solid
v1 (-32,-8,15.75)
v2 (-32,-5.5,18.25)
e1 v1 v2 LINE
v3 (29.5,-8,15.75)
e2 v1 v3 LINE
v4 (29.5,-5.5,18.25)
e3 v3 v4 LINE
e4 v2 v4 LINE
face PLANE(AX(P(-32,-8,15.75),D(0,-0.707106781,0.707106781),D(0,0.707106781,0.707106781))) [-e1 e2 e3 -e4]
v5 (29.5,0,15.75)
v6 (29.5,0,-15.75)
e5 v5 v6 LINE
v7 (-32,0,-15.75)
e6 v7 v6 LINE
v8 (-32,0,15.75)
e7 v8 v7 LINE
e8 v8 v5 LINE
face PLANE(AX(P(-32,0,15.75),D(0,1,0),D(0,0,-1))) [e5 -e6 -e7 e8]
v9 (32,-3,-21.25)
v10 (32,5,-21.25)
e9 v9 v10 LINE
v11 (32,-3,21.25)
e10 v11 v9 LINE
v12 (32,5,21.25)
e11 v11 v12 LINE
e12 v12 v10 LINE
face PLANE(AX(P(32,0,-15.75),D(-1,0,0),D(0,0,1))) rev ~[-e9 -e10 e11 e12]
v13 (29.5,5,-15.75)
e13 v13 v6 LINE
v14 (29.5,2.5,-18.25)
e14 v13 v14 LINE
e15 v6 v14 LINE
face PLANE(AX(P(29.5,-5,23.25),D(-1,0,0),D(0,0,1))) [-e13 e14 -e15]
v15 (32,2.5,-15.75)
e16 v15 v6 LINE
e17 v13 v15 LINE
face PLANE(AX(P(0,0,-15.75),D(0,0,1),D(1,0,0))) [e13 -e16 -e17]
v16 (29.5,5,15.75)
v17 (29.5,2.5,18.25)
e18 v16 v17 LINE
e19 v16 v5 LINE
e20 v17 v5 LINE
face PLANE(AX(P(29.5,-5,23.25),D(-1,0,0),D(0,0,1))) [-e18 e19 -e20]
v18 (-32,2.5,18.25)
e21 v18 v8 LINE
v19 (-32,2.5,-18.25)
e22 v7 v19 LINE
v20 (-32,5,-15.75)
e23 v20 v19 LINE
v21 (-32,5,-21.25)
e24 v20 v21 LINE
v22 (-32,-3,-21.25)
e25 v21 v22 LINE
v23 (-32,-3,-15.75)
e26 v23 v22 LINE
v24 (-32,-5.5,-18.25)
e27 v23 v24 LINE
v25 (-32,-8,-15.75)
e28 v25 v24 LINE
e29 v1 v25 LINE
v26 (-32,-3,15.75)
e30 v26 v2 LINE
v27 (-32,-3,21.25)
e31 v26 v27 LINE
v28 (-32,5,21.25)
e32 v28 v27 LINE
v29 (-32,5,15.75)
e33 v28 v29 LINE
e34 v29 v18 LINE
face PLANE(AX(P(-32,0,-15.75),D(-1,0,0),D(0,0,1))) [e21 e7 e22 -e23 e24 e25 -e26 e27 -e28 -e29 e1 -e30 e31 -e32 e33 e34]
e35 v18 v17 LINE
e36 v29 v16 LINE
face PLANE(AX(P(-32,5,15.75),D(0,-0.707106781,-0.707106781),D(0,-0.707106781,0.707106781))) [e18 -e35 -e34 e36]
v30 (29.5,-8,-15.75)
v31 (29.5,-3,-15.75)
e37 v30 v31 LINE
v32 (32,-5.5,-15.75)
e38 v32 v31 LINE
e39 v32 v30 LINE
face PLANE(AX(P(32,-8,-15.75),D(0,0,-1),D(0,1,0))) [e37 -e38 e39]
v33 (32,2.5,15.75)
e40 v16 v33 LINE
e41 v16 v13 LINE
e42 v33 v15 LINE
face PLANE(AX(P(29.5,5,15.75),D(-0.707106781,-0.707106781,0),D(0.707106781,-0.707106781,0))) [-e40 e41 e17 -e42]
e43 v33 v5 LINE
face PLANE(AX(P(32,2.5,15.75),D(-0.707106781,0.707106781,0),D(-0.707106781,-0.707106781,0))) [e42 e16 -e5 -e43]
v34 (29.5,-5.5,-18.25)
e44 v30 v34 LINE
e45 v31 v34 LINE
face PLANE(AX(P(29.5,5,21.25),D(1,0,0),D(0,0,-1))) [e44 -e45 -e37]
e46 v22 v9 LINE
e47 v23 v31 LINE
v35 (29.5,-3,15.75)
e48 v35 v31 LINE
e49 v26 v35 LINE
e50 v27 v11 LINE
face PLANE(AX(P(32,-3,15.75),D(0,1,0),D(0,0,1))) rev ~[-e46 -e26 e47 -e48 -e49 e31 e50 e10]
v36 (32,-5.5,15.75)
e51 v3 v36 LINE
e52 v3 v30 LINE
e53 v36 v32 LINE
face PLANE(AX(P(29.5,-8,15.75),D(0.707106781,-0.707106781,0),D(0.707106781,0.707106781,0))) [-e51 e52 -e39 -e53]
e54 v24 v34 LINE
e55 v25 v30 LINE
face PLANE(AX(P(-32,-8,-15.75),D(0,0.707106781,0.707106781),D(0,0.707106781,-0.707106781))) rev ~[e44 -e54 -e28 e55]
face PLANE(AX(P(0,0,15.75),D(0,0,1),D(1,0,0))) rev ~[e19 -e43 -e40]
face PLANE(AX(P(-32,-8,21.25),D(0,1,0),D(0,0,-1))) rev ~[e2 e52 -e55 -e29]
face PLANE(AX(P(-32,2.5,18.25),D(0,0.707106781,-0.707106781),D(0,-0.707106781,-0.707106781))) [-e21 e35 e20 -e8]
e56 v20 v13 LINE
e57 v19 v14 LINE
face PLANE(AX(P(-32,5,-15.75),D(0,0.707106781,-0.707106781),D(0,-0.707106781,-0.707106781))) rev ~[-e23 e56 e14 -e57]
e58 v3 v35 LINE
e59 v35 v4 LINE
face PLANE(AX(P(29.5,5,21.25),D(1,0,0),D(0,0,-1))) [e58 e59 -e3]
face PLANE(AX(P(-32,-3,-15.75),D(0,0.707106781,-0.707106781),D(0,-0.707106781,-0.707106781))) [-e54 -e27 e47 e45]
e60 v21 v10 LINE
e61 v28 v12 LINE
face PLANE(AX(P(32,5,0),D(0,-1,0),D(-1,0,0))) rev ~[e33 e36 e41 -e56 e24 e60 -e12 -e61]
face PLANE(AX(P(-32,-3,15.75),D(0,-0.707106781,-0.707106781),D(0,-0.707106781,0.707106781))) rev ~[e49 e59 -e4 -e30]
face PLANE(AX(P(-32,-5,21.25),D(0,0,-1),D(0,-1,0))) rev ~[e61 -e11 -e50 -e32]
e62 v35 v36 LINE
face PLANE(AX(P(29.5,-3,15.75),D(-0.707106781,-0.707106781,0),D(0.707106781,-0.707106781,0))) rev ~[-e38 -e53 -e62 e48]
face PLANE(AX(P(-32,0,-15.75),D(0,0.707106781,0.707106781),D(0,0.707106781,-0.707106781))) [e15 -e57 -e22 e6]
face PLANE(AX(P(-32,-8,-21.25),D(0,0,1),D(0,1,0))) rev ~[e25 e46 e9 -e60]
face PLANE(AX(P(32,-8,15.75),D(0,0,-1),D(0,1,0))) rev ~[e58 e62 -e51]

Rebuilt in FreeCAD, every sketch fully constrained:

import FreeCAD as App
import Part
import Sketcher
Q = App.Units.Quantity


def add_polygon(sketch, points):
    """Adds a closed chain of lines whose ends are joined by coincident constraints."""
    first, n = sketch.GeometryCount, len(points)
    for a, b in zip(points, points[1:] + points[:1]):
        sketch.addGeometry(Part.LineSegment(App.Vector(*a, 0), App.Vector(*b, 0)), False)
    for i in range(n):
        sketch.addConstraint(Sketcher.Constraint("Coincident", first + i, 2, first + (i + 1) % n, 1))

doc = App.newDocument("Part")
body = doc.addObject("PartDesign::Body", "Body")

# Sketch on XY plane
sketch1 = body.newObject("Sketcher::SketchObject", "Sketch")
sketch1.AttachmentSupport = (doc.getObject("XY_Plane"), [""])
sketch1.MapMode = "FlatFace"
add_polygon(sketch1, [(-32, 5), (-32, -5), (32, -5), (32, 5)])  # lines 0-3
sketch1.addConstraint([
    Sketcher.Constraint("Vertical", 0),
    Sketcher.Constraint("Horizontal", 1),
    Sketcher.Constraint("Vertical", 2),
    Sketcher.Constraint("Horizontal", 3),
    Sketcher.Constraint("Symmetric", 0, 2, 2, 2, -1, 1),
    Sketcher.Constraint("DistanceX", 1, 1, 1, 2, Q("64 mm")),
    Sketcher.Constraint("DistanceY", 0, 2, 0, 1, Q("10 mm")),
])
pad1 = body.newObject("PartDesign::Pad", "Pad")
pad1.Profile = sketch1
pad1.Length = 46.5
pad1.Midplane = True

# Sketch on XY plane
sketch2 = body.newObject("Sketcher::SketchObject", "Sketch001")
sketch2.AttachmentSupport = (doc.getObject("XY_Plane"), [""])
sketch2.MapMode = "FlatFace"
sketch2.AttachmentOffset = App.Placement(App.Vector(0, 0, 15.75), App.Rotation())
add_polygon(sketch2, [(32, 2.5), (29.5, 5), (29.5, 0)])  # lines 0-2
sketch2.addConstraint([
    Sketcher.Constraint("Vertical", 1),
    Sketcher.Constraint("PointOnObject", 1, 2, -1),
    Sketcher.Constraint("Perpendicular", 0, 2),
    Sketcher.Constraint("Equal", 0, 2),
    Sketcher.Constraint("DistanceY", 1, 2, 1, 1, Q("5 mm")),
    Sketcher.Constraint("DistanceX", -1, 1, 2, 2, Q("32 mm")),
])
pocket1 = body.newObject("PartDesign::Pocket", "Pocket")
pocket1.Profile = sketch2
pocket1.Length = 31.5

# Sketch on YZ plane
sketch3 = body.newObject("Sketcher::SketchObject", "Sketch002")
sketch3.AttachmentSupport = (doc.getObject("YZ_Plane"), [""])
sketch3.MapMode = "FlatFace"
sketch3.AttachmentOffset = App.Placement(App.Vector(0, 0, -32), App.Rotation())
add_polygon(sketch3, [(2.5, -18.25), (0, -15.75), (0, 15.75), (2.5, 18.25), (5, 15.75), (5, -15.75)])  # lines 0-5
sketch3.addConstraint([
    Sketcher.Constraint("Vertical", 1),
    Sketcher.Constraint("Vertical", 4),
    Sketcher.Constraint("Symmetric", 0, 2, 1, 2, -1, 1),
    Sketcher.Constraint("Symmetric", 2, 2, 5, 2, -1),
    Sketcher.Constraint("Perpendicular", 0, 2),
    Sketcher.Constraint("Perpendicular", 2, 3),
    Sketcher.Constraint("Perpendicular", 3, 5),
    Sketcher.Constraint("Horizontal", 1, 2, 3, 2),
    Sketcher.Constraint("DistanceY", 1, 1, 1, 2, Q("31.5 mm")),
    Sketcher.Constraint("DistanceX", -1, 1, 3, 2, Q("5 mm")),
])
pocket2 = body.newObject("PartDesign::Pocket", "Pocket001")
pocket2.Profile = sketch3
pocket2.Length = 61.5
pocket2.Reversed = True

# Sketch on YZ plane
sketch4 = body.newObject("Sketcher::SketchObject", "Sketch003")
sketch4.AttachmentSupport = (doc.getObject("YZ_Plane"), [""])
sketch4.MapMode = "FlatFace"
sketch4.AttachmentOffset = App.Placement(App.Vector(0, 0, -32), App.Rotation())
add_polygon(sketch4, [(5, 23.25), (5, 21.25), (-5, 21.25), (-5, 23.25)])  # lines 0-3
add_polygon(sketch4, [(5, -21.25), (5, -23.25), (-5, -23.25), (-5, -21.25)])  # lines 4-7
sketch4.addConstraint([
    Sketcher.Constraint("Vertical", 0),
    Sketcher.Constraint("Horizontal", 1),
    Sketcher.Constraint("Vertical", 2),
    Sketcher.Constraint("Horizontal", 3),
    Sketcher.Constraint("Vertical", 4),
    Sketcher.Constraint("Horizontal", 5),
    Sketcher.Constraint("Vertical", 6),
    Sketcher.Constraint("Horizontal", 7),
    Sketcher.Constraint("Symmetric", 2, 2, 4, 2, -1, 1),
    Sketcher.Constraint("Symmetric", 0, 2, 6, 2, -1, 1),
    Sketcher.Constraint("Vertical", 3, 2, 4, 2),
    Sketcher.Constraint("DistanceY", 0, 2, 0, 1, Q("2 mm")),
    Sketcher.Constraint("DistanceX", 1, 2, 1, 1, Q("10 mm")),
    Sketcher.Constraint("DistanceY", 4, 2, 0, 2, Q("44.5 mm")),
])
pocket3 = body.newObject("PartDesign::Pocket", "Pocket002")
pocket3.Profile = sketch4
pocket3.Type = "ThroughAll"
pocket3.Reversed = True

# Sketch on YZ plane
sketch5 = body.newObject("Sketcher::SketchObject", "Sketch004")
sketch5.AttachmentSupport = (doc.getObject("YZ_Plane"), [""])
sketch5.MapMode = "FlatFace"
sketch5.AttachmentOffset = App.Placement(App.Vector(0, 0, -32), App.Rotation())
add_polygon(sketch5, [(-5, 21.25), (-5, -21.25), (-8, -21.25), (-8, 21.25)])  # lines 0-3
sketch5.addConstraint([
    Sketcher.Constraint("Vertical", 0),
    Sketcher.Constraint("Horizontal", 1),
    Sketcher.Constraint("Vertical", 2),
    Sketcher.Constraint("Horizontal", 3),
    Sketcher.Constraint("DistanceX", 1, 2, 1, 1, Q("3 mm")),
    Sketcher.Constraint("DistanceY", 0, 2, 0, 1, Q("42.5 mm")),
    Sketcher.Constraint("DistanceX", 0, 2, -1, 1, Q("5 mm")),
    Sketcher.Constraint("DistanceY", 0, 2, -1, 1, Q("21.25 mm")),
])
pad2 = body.newObject("PartDesign::Pad", "Pad001")
pad2.Profile = sketch5
pad2.Length = 64

# Sketch on YZ plane
sketch6 = body.newObject("Sketcher::SketchObject", "Sketch005")
sketch6.AttachmentSupport = (doc.getObject("YZ_Plane"), [""])
sketch6.MapMode = "FlatFace"
sketch6.AttachmentOffset = App.Placement(App.Vector(0, 0, -32), App.Rotation())
add_polygon(sketch6, [(-8, 15.75), (-8, 21.25), (-3, 21.25), (-3, 15.75), (-5.5, 18.25)])  # lines 0-4
add_polygon(sketch6, [(-8, -21.25), (-8, -15.75), (-5.5, -18.25), (-3, -15.75), (-3, -21.25)])  # lines 5-9
sketch6.addConstraint([
    Sketcher.Constraint("Vertical", 0),
    Sketcher.Constraint("Horizontal", 1),
    Sketcher.Constraint("Vertical", 2),
    Sketcher.Constraint("Vertical", 5),
    Sketcher.Constraint("Vertical", 8),
    Sketcher.Constraint("Horizontal", 9),
    Sketcher.Constraint("Symmetric", 4, 2, 5, 2, -1),
    Sketcher.Constraint("Symmetric", 3, 2, 6, 2, -1),
    Sketcher.Constraint("Symmetric", 2, 2, 7, 2, -1),
    Sketcher.Constraint("Perpendicular", 3, 4),
    Sketcher.Constraint("Perpendicular", 4, 6),
    Sketcher.Constraint("Horizontal", 2, 2, 4, 2),
    Sketcher.Constraint("Equal", 2, 5),
    Sketcher.Constraint("DistanceX", 1, 1, 1, 2, Q("5 mm")),
    Sketcher.Constraint("DistanceY", 0, 1, 0, 2, Q("5.5 mm")),
    Sketcher.Constraint("DistanceX", 0, 2, -1, 1, Q("8 mm")),
    Sketcher.Constraint("DistanceY", 5, 2, 3, 2, Q("34 mm")),
])
pocket4 = body.newObject("PartDesign::Pocket", "Pocket003")
pocket4.Profile = sketch6
pocket4.Length = 61.5
pocket4.Reversed = True

# Sketch on YZ plane
sketch7 = body.newObject("Sketcher::SketchObject", "Sketch006")
sketch7.AttachmentSupport = (doc.getObject("YZ_Plane"), [""])
sketch7.MapMode = "FlatFace"
sketch7.AttachmentOffset = App.Placement(App.Vector(0, 0, 32), App.Rotation())
add_polygon(sketch7, [(-3, 21.25), (-8, 21.25), (-8, 15.75), (-3, 15.75)])  # lines 0-3
add_polygon(sketch7, [(-3, -15.75), (-8, -15.75), (-8, -21.25), (-3, -21.25)])  # lines 4-7
sketch7.addConstraint([
    Sketcher.Constraint("Horizontal", 0),
    Sketcher.Constraint("Vertical", 1),
    Sketcher.Constraint("Horizontal", 2),
    Sketcher.Constraint("Vertical", 3),
    Sketcher.Constraint("Horizontal", 4),
    Sketcher.Constraint("Vertical", 5),
    Sketcher.Constraint("Horizontal", 6),
    Sketcher.Constraint("Vertical", 7),
    Sketcher.Constraint("Symmetric", 1, 2, 4, 2, -1),
    Sketcher.Constraint("Symmetric", 3, 2, 6, 2, -1),
    Sketcher.Constraint("DistanceX", 0, 2, 0, 1, Q("5 mm")),
    Sketcher.Constraint("DistanceY", 1, 2, 1, 1, Q("5.5 mm")),
    Sketcher.Constraint("DistanceX", 0, 2, -1, 1, Q("8 mm")),
    Sketcher.Constraint("DistanceY", 4, 2, 0, 2, Q("37 mm")),
])
pocket5 = body.newObject("PartDesign::Pocket", "Pocket004")
pocket5.Profile = sketch7
pocket5.Length = 2.5

# Sketch on XY plane
sketch8 = body.newObject("Sketcher::SketchObject", "Sketch007")
sketch8.AttachmentSupport = (doc.getObject("XY_Plane"), [""])
sketch8.MapMode = "FlatFace"
sketch8.AttachmentOffset = App.Placement(App.Vector(0, 0, 15.75), App.Rotation())
add_polygon(sketch8, [(32, -3), (29.5, -3), (32, -5.5)])  # lines 0-2
add_polygon(sketch8, [(32, -8), (32, -5.5), (29.5, -8)])  # lines 3-5
sketch8.addConstraint([
    Sketcher.Constraint("Horizontal", 0),
    Sketcher.Constraint("Vertical", 2),
    Sketcher.Constraint("Vertical", 3),
    Sketcher.Constraint("Horizontal", 5),
    Sketcher.Constraint("Coincident", 3, 2, 1, 2),
    Sketcher.Constraint("Perpendicular", 1, 4),
    Sketcher.Constraint("Vertical", 0, 2, 4, 2),
    Sketcher.Constraint("Equal", 5, 2),
    Sketcher.Constraint("DistanceX", 0, 2, 0, 1, Q("2.5 mm")),
    Sketcher.Constraint("DistanceY", 0, 2, -1, 1, Q("3 mm")),
    Sketcher.Constraint("DistanceX", -1, 1, 1, 2, Q("32 mm")),
])
pocket6 = body.newObject("PartDesign::Pocket", "Pocket005")
pocket6.Profile = sketch8
pocket6.Type = "ThroughAll"

doc.recompute()
